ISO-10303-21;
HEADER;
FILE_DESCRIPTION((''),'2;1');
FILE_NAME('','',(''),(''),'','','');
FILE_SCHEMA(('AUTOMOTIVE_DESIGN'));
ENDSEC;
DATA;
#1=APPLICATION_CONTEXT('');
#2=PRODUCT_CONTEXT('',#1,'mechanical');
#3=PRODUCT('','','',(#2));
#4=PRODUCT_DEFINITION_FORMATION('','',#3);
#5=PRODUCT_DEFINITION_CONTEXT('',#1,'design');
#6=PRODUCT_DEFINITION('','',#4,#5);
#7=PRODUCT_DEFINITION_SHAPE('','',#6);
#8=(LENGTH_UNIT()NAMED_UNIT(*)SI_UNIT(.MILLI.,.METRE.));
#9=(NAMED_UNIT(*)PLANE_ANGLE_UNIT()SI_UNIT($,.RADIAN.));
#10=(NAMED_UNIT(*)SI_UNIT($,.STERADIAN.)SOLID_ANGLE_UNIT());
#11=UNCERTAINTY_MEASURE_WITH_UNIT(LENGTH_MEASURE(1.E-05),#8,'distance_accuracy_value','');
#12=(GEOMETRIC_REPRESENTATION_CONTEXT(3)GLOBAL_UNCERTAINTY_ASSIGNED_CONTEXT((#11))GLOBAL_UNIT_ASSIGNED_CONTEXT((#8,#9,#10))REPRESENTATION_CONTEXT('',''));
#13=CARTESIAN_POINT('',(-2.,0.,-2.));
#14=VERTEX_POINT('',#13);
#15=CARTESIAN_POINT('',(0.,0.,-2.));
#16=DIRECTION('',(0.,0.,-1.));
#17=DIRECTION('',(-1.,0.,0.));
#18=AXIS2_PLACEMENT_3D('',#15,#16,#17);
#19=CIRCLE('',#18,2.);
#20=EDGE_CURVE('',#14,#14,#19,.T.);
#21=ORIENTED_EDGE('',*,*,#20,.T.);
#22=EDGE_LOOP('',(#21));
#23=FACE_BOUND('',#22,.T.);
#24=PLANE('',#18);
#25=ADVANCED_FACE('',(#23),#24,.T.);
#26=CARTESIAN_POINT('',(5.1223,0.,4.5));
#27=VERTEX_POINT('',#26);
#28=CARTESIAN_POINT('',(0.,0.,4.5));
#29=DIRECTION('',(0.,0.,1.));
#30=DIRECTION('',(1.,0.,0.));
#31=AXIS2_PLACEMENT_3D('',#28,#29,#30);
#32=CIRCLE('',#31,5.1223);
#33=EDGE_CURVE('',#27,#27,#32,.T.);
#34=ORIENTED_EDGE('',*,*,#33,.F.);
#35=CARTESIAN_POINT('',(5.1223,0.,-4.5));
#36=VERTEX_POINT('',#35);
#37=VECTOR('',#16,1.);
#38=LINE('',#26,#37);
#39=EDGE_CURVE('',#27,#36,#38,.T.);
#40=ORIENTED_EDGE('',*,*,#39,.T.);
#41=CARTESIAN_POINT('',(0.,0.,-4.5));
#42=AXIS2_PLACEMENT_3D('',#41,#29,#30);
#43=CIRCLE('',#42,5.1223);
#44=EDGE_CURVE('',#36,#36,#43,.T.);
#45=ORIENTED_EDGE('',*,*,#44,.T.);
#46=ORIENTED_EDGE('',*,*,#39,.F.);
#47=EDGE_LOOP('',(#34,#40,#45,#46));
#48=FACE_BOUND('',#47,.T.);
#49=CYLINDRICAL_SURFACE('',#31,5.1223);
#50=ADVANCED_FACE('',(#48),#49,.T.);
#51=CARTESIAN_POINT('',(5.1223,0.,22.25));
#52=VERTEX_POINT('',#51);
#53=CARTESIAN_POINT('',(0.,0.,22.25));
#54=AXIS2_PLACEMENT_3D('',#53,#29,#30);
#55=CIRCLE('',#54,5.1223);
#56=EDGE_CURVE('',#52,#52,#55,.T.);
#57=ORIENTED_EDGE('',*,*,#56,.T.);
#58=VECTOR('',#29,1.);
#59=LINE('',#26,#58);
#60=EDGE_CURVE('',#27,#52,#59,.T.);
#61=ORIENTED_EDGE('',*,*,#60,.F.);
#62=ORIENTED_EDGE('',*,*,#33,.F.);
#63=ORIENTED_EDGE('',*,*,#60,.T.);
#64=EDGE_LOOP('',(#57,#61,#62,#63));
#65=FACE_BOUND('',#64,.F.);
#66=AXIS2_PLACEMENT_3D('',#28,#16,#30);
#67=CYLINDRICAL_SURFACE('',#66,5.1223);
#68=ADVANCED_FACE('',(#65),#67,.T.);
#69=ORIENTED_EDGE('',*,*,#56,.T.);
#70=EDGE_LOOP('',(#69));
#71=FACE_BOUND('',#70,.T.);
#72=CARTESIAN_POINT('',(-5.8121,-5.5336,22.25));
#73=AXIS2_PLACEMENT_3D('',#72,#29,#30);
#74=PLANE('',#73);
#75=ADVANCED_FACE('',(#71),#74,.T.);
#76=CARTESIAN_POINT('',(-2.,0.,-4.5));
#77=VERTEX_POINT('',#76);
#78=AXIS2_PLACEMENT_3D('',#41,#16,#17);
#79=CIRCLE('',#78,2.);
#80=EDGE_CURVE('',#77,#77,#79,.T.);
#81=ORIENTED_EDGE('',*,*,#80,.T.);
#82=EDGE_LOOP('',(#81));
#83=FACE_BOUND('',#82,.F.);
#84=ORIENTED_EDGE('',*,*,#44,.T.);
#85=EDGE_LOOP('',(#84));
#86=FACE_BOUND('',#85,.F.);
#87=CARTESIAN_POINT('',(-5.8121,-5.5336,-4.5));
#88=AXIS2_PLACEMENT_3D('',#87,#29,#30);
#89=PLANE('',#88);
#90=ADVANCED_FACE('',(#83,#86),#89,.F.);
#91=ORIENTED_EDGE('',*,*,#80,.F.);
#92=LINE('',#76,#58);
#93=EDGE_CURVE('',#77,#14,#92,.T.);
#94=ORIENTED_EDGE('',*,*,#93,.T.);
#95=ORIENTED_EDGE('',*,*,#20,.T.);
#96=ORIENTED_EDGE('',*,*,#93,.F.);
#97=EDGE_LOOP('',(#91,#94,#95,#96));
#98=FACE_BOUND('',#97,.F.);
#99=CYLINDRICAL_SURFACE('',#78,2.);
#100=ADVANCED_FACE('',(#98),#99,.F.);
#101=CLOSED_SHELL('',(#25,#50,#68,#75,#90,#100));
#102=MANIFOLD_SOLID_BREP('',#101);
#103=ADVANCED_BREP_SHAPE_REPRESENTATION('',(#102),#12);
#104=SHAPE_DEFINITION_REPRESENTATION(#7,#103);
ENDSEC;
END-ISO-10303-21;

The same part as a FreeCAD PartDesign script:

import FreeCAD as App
import Part
import Sketcher
Q = App.Units.Quantity

doc = App.newDocument("Part")
params = doc.addObject("Spreadsheet::Sheet", "Params")
for row, (alias, value) in enumerate([
    ("pad1_length", "17.75 mm"),
    ("pad1_length2", "9 mm"),
    ("sketch2_diameter", "4 mm"),
    ("pocket1_length", "2.5 mm"),
], start=1):
    params.set(f"A{row}", alias)
    params.set(f"B{row}", "=" + value)
    params.setAlias(f"B{row}", alias)

body = doc.addObject("PartDesign::Body", "Body")

# Sketch on XY plane
sketch1 = doc.addObject("Sketcher::SketchObject", "Sketch")
body.addObject(sketch1)
sketch1.AttachmentSupport = (doc.XY_Plane, [""])
sketch1.MapMode = "FlatFace"
sketch1.AttachmentOffset = App.Placement(App.Vector(0, 0, 4.5), App.Rotation())
sketch1.addGeometry(Part.Circle(App.Vector(0, 0, 0), App.Vector(0, 0, 1), 5), False)
sketch1.addConstraint([
    Sketcher.Constraint("Coincident", 0, 3, -1, 1),
    Sketcher.Constraint("Diameter", 0, Q("10.2446 mm")),
])
pad1 = doc.addObject("PartDesign::Pad", "Pad")
body.addObject(pad1)
pad1.Profile = sketch1
pad1.Type = "TwoLengths"
pad1.setExpression("Length", "Params.pad1_length")
pad1.setExpression("Length2", "Params.pad1_length2")

# Sketch on XY plane
sketch2 = doc.addObject("Sketcher::SketchObject", "Sketch001")
body.addObject(sketch2)
sketch2.AttachmentSupport = (doc.XY_Plane, [""])
sketch2.MapMode = "FlatFace"
sketch2.AttachmentOffset = App.Placement(App.Vector(0, 0, -4.5), App.Rotation())
sketch2.addGeometry(Part.Circle(App.Vector(0, 0, 0), App.Vector(0, 0, 1), 2), False)
sketch2.addConstraint([
    Sketcher.Constraint("Coincident", 0, 3, -1, 1),
    Sketcher.Constraint("Diameter", 0, Q("4 mm")),
])
sketch2.setExpression("Constraints[1]", "Params.sketch2_diameter")
pocket1 = doc.addObject("PartDesign::Pocket", "Pocket")
body.addObject(pocket1)
pocket1.Profile = sketch2
pocket1.setExpression("Length", "Params.pocket1_length")
pocket1.Reversed = True

doc.recompute()
